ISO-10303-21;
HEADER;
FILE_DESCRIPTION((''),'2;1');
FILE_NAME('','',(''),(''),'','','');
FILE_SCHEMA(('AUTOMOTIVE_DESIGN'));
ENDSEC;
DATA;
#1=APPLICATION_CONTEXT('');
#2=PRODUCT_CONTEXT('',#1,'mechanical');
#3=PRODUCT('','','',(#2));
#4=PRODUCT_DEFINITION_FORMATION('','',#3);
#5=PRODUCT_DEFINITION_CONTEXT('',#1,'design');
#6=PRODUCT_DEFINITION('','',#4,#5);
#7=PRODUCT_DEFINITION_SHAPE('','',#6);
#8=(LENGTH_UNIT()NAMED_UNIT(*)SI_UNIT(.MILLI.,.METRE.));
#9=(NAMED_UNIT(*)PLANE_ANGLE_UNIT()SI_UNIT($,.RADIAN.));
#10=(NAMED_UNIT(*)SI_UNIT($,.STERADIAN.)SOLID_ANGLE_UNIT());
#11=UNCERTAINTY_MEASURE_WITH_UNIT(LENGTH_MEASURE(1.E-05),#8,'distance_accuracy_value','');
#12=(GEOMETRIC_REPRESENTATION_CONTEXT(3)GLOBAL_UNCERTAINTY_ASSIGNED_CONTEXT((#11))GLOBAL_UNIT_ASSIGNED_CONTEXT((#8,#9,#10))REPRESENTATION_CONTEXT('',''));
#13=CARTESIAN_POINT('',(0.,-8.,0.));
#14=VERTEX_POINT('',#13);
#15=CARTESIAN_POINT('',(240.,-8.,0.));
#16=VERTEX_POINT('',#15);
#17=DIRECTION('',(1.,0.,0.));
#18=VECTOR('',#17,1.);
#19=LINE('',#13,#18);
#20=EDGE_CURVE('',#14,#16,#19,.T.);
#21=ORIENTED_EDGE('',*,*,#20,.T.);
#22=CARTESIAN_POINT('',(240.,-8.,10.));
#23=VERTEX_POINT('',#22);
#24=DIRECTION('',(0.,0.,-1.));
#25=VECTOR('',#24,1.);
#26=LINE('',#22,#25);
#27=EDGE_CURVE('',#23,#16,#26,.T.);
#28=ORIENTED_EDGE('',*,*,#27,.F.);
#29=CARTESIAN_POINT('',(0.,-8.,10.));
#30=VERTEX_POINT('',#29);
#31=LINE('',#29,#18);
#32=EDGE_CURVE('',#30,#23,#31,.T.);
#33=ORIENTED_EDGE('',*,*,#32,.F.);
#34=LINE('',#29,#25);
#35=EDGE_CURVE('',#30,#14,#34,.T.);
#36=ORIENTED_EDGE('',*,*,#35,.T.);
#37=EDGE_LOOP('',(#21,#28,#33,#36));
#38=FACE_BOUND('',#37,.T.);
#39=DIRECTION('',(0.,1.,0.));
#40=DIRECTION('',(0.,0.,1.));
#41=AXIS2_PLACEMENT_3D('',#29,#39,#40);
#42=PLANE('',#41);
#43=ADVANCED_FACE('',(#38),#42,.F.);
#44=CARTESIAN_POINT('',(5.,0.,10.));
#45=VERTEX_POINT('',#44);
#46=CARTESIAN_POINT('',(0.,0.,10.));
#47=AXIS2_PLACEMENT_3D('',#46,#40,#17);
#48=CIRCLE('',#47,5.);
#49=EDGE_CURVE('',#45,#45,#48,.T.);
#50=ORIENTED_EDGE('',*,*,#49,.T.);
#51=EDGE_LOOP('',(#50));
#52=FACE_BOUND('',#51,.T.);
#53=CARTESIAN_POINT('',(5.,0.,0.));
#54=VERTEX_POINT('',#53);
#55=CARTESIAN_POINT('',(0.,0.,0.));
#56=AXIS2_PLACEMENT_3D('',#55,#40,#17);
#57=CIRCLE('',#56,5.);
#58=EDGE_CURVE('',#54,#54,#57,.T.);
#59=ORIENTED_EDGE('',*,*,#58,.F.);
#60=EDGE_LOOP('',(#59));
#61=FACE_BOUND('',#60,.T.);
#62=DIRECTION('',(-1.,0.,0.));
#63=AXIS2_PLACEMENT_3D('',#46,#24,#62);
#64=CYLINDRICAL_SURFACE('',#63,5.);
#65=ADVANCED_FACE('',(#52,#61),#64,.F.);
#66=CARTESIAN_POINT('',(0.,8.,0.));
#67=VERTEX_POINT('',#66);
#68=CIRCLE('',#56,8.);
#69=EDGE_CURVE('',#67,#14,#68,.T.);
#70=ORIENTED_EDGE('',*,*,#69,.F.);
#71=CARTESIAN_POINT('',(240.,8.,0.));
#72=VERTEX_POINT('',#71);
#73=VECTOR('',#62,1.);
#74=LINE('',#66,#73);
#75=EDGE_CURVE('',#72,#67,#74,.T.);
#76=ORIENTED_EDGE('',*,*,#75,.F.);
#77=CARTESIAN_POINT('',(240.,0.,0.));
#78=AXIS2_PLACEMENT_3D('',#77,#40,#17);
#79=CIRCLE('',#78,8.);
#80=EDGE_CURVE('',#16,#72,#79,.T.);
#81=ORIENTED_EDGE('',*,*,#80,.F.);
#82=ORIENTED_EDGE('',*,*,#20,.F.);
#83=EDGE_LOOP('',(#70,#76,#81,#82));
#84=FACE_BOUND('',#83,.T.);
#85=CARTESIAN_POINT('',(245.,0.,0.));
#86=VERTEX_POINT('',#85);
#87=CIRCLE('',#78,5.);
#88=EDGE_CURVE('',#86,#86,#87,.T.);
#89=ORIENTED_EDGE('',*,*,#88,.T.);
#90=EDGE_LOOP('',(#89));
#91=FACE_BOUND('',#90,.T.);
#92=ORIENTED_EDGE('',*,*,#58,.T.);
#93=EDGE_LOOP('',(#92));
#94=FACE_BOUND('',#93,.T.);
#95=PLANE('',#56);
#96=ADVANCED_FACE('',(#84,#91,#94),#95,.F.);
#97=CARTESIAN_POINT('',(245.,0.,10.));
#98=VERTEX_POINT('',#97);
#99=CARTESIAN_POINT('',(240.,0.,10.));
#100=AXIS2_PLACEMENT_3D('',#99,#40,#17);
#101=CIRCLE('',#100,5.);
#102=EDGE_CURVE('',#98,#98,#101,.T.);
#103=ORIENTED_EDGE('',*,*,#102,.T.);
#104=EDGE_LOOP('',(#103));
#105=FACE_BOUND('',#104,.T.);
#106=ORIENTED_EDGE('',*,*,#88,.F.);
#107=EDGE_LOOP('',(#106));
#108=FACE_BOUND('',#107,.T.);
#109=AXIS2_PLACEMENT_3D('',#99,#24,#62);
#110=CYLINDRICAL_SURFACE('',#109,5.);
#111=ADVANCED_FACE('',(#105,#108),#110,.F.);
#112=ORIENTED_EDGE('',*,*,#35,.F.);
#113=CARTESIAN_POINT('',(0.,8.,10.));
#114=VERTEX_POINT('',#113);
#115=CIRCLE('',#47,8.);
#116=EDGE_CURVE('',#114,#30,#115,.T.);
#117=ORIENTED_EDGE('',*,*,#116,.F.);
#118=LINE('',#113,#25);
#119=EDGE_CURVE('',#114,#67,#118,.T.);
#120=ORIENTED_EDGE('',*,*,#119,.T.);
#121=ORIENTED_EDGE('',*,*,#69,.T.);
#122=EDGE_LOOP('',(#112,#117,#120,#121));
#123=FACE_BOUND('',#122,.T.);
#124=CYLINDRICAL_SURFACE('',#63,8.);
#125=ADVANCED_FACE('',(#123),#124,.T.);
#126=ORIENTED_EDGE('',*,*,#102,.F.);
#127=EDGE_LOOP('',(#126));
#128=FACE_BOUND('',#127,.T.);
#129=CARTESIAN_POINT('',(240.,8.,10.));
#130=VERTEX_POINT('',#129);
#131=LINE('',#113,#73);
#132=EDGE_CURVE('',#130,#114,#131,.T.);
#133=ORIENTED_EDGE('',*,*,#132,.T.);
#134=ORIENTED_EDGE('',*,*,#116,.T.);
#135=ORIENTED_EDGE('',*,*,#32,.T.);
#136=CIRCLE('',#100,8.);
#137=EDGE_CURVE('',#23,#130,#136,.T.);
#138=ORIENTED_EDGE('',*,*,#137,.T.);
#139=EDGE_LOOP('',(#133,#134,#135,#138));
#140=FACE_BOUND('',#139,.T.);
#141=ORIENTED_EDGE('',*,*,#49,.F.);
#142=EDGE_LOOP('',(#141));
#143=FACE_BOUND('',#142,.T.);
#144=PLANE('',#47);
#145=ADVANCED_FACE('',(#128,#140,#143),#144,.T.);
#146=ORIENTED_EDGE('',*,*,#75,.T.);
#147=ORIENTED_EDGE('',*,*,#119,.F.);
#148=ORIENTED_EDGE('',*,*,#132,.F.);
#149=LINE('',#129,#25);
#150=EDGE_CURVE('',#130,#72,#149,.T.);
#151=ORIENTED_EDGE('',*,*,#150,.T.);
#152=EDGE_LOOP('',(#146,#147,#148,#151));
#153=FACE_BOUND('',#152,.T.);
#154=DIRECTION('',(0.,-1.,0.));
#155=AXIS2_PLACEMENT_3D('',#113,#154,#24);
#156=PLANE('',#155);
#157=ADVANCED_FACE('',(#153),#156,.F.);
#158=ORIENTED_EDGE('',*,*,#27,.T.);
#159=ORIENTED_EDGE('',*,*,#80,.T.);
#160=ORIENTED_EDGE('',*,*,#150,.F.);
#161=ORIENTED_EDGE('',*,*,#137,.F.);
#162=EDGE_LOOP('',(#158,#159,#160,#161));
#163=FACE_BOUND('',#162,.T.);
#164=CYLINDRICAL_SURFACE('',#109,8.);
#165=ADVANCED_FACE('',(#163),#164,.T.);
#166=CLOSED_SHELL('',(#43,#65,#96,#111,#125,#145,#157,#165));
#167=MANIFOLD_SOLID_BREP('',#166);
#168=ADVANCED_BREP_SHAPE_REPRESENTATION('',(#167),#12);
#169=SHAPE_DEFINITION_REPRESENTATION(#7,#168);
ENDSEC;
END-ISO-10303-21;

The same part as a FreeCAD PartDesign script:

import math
import FreeCAD as App
import Part
import Sketcher
Q = App.Units.Quantity

doc = App.newDocument("Part")
body = doc.addObject("PartDesign::Body", "Body")

# Sketch on XY plane
sketch1 = doc.addObject("Sketcher::SketchObject", "Sketch")
body.addObject(sketch1)
sketch1.AttachmentSupport = (doc.XY_Plane, [""])
sketch1.MapMode = "FlatFace"
sketch1.addGeometry(Part.LineSegment(App.Vector(240, 8, 0), App.Vector(0, 8, 0)), False)
sketch1.addGeometry(Part.ArcOfCircle(Part.Circle(App.Vector(0, 0, 0), App.Vector(0, 0, 1), 8), math.radians(90), math.radians(270)), False)
sketch1.addGeometry(Part.LineSegment(App.Vector(0, -8, 0), App.Vector(240, -8, 0)), False)
sketch1.addGeometry(Part.ArcOfCircle(Part.Circle(App.Vector(240, 0, 0), App.Vector(0, 0, 1), 8), math.radians(-90), math.radians(90)), False)
sketch1.addGeometry(Part.Circle(App.Vector(240, 0, 0), App.Vector(0, 0, 1), 5), False)
sketch1.addGeometry(Part.Circle(App.Vector(0, 0, 0), App.Vector(0, 0, 1), 5), False)
sketch1.addConstraint(Sketcher.Constraint("Tangent", 0, 2, 1, 1))
sketch1.addConstraint(Sketcher.Constraint("Tangent", 1, 2, 2, 1))
sketch1.addConstraint(Sketcher.Constraint("Tangent", 2, 2, 3, 1))
sketch1.addConstraint(Sketcher.Constraint("Tangent", 3, 2, 0, 1))
sketch1.addConstraint(Sketcher.Constraint("Horizontal", 0))
sketch1.addConstraint(Sketcher.Constraint("Horizontal", 2))
sketch1.addConstraint(Sketcher.Constraint("Coincident", 1, 3, -1, 1))
sketch1.addConstraint(Sketcher.Constraint("Coincident", 5, 3, -1, 1))
sketch1.addConstraint(Sketcher.Constraint("Coincident", 4, 3, 3, 3))
sketch1.addConstraint(Sketcher.Constraint("Equal", 4, 5))
sketch1.addConstraint(Sketcher.Constraint("Diameter", 4, Q("10 mm")))
sketch1.addConstraint(Sketcher.Constraint("Radius", 1, Q("8 mm")))
sketch1.addConstraint(Sketcher.Constraint("DistanceX", 0, 2, 0, 1, Q("240 mm")))
pad1 = doc.addObject("PartDesign::Pad", "Pad")
body.addObject(pad1)
pad1.Profile = sketch1
pad1.Length = 10

doc.recompute()
